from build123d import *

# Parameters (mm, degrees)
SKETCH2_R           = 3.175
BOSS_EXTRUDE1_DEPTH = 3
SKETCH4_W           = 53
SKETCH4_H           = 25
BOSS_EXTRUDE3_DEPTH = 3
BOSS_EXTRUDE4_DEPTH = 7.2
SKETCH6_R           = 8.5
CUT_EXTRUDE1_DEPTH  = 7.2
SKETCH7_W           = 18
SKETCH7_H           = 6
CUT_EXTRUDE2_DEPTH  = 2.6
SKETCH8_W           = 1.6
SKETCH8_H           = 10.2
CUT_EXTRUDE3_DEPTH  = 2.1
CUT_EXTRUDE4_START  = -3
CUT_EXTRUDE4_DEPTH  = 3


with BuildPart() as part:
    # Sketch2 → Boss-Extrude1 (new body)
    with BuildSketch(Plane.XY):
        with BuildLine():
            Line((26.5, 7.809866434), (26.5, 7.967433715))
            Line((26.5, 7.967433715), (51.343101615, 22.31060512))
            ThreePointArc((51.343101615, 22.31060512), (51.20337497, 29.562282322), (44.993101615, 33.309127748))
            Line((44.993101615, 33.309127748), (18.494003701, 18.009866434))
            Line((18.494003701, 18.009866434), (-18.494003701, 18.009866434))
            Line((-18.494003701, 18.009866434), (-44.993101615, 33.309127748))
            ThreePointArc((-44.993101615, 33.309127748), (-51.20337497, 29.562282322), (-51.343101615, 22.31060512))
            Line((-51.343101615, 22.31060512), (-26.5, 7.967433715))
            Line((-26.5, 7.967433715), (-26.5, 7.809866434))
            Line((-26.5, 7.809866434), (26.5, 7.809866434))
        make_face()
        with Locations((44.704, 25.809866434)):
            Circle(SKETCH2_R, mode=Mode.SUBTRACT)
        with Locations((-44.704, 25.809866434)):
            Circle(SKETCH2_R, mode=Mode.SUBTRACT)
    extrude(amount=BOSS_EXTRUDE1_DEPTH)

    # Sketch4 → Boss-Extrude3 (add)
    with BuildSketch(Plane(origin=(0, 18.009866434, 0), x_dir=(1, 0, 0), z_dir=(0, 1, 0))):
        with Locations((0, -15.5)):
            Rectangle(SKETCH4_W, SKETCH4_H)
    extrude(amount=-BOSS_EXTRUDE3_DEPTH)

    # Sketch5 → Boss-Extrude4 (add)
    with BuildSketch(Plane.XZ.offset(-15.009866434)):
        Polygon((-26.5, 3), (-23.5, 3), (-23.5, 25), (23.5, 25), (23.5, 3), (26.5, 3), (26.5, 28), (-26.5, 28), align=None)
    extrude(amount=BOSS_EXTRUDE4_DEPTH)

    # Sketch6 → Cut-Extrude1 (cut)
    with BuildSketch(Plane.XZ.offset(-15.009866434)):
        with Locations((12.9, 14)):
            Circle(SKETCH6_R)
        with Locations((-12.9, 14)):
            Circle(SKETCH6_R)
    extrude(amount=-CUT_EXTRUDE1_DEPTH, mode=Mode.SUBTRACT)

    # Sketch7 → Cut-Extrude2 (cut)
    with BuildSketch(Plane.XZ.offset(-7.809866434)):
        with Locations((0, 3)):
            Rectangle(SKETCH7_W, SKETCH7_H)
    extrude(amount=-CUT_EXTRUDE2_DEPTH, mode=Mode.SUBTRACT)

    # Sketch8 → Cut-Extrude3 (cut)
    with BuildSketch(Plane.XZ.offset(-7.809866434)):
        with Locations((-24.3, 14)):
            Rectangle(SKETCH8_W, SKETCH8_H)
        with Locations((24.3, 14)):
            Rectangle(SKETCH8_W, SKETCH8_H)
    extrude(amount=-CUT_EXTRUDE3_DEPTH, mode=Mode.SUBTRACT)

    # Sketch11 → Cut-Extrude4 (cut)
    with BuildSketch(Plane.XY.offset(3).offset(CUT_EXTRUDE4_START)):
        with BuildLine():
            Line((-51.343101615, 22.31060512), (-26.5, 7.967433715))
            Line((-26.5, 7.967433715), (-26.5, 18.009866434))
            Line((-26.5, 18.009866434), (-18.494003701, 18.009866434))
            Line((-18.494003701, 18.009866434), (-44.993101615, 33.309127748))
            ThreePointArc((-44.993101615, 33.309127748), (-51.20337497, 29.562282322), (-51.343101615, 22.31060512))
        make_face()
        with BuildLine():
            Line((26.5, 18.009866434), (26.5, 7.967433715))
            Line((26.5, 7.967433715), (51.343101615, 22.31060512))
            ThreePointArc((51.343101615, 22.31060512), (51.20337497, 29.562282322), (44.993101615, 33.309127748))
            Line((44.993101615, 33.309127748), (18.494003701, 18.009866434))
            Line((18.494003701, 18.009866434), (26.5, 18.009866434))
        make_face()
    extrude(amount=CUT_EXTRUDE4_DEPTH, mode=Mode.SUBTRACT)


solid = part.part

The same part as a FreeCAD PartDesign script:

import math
import FreeCAD as App
import Part
import Sketcher
from FreeCAD import Vector
Q = App.Units.Quantity


def add_polygon(sketch, points):
    """Adds a closed chain of lines whose ends are joined by coincident constraints."""
    first, n = sketch.GeometryCount, len(points)
    for a, b in zip(points, points[1:] + points[:1]):
        sketch.addGeometry(Part.LineSegment(App.Vector(*a, 0), App.Vector(*b, 0)), False)
    for i in range(n):
        sketch.addConstraint(Sketcher.Constraint("Coincident", first + i, 2, first + (i + 1) % n, 1))

doc = App.newDocument("Part")
body = doc.addObject("PartDesign::Body", "Body")

sketch1 = body.newObject("Sketcher::SketchObject", "Sketch")
sketch1.AttachmentSupport = (doc.getObject("XY_Plane"), [""])
sketch1.MapMode = "FlatFace"
sketch1.addGeometry([
    Part.LineSegment(Vector(26.5, 7.81, 0), Vector(26.5, 7.97, 0)),
    Part.LineSegment(Vector(26.5, 7.97, 0), Vector(51.34, 22.31, 0)),
    Part.ArcOfCircle(Part.Circle(Vector(44.7, 25.81, 0), Vector(0, 0, 1), 7.5), math.radians(-28), math.radians(88)),
    Part.LineSegment(Vector(44.99, 33.31, 0), Vector(18.49, 18.01, 0)),
    Part.LineSegment(Vector(18.49, 18.01, 0), Vector(-18.49, 18.01, 0)),
    Part.LineSegment(Vector(-18.49, 18.01, 0), Vector(-44.99, 33.31, 0)),
    Part.ArcOfCircle(Part.Circle(Vector(-44.7, 25.81, 0), Vector(0, 0, 1), 7.5), math.radians(92), math.radians(208)),
    Part.LineSegment(Vector(-51.34, 22.31, 0), Vector(-26.5, 7.97, 0)),
    Part.LineSegment(Vector(-26.5, 7.97, 0), Vector(-26.5, 7.81, 0)),
    Part.LineSegment(Vector(-26.5, 7.81, 0), Vector(26.5, 7.81, 0)),
    Part.Circle(Vector(-44.7, 25.81, 0), Vector(0, 0, 1), 3.17),
    Part.Circle(Vector(44.7, 25.81, 0), Vector(0, 0, 1), 3.17),
], False)
sketch1.addConstraint([
    Sketcher.Constraint("Coincident", 0, 2, 1, 1),
    Sketcher.Constraint("Coincident", 1, 2, 2, 1),
    Sketcher.Constraint("Coincident", 2, 2, 3, 1),
    Sketcher.Constraint("Coincident", 3, 2, 4, 1),
    Sketcher.Constraint("Coincident", 4, 2, 5, 1),
    Sketcher.Constraint("Coincident", 5, 2, 6, 1),
    Sketcher.Constraint("Coincident", 6, 2, 7, 1),
    Sketcher.Constraint("Coincident", 7, 2, 8, 1),
    Sketcher.Constraint("Coincident", 8, 2, 9, 1),
    Sketcher.Constraint("Coincident", 9, 2, 0, 1),
    Sketcher.Constraint("Vertical", 0),
    Sketcher.Constraint("Horizontal", 4),
    Sketcher.Constraint("Vertical", 8),
    Sketcher.Constraint("Horizontal", 9),
    Sketcher.Constraint("Coincident", 10, 3, 6, 3),
    Sketcher.Constraint("Coincident", 11, 3, 2, 3),
    Sketcher.Constraint("Equal", 2, 6),
    Sketcher.Constraint("Equal", 10, 11),
    Sketcher.Constraint("Symmetric", 2, 3, 6, 3, -2),
    Sketcher.Constraint("Symmetric", 0, 2, 7, 2, -2),
    Sketcher.Constraint("Parallel", 1, 3),
    Sketcher.Constraint("Parallel", 5, 7),
    Sketcher.Constraint("Horizontal", 2, 2, 5, 2),
    Sketcher.Constraint("Horizontal", 1, 2, 6, 2),
    Sketcher.Constraint("Diameter", 10, 6.35),
    Sketcher.Constraint("DistanceX", 9, 1, 9, 2, 53.0),
    Sketcher.Constraint("Angle", 1, Q("30 deg")),
    Sketcher.Constraint("DistanceY", 8, 2, 6, 3, 18.0),
    Sketcher.Constraint("DistanceY", 3, 2, 2, 3, 7.8),
    Sketcher.Constraint("Radius", 2, 7.504832),
    Sketcher.Constraint("DistanceX", 2, 2, 1, 2, 6.35),
    Sketcher.Constraint("DistanceX", -1, 1, 2, 3, 44.704),
    Sketcher.Constraint("DistanceX", -1, 1, 1, 2, 51.343102),
    Sketcher.Constraint("DistanceY", -1, 1, 2, 3, 25.809866),
])
pad1 = body.newObject("PartDesign::Pad", "Pad")
pad1.Profile = sketch1
pad1.Length = 3

sketch2 = body.newObject("Sketcher::SketchObject", "Sketch001")
sketch2.AttachmentSupport = (doc.getObject("XZ_Plane"), [""])
sketch2.MapMode = "FlatFace"
sketch2.AttachmentOffset = App.Placement(Vector(0, 0, -18.009866), App.Rotation())
add_polygon(sketch2, [(-26, 3), (-26, 28), (26, 28), (26, 3)])
sketch2.addConstraint([
    Sketcher.Constraint("Vertical", 0),
    Sketcher.Constraint("Horizontal", 1),
    Sketcher.Constraint("Vertical", 2),
    Sketcher.Constraint("Horizontal", 3),
    Sketcher.Constraint("DistanceX", 1, 1, 1, 2, 53.0),
    Sketcher.Constraint("DistanceY", 0, 1, 0, 2, 25.0),
    Sketcher.Constraint("DistanceY", -1, 1, 0, 2, 28.0),
    Sketcher.Constraint("DistanceX", 0, 2, -1, 1, 26.5),
])
pad2 = body.newObject("PartDesign::Pad", "Pad001")
pad2.Profile = sketch2
pad2.Length = 3

sketch3 = body.newObject("Sketcher::SketchObject", "Sketch002")
sketch3.AttachmentSupport = (doc.getObject("XZ_Plane"), [""])
sketch3.MapMode = "FlatFace"
sketch3.AttachmentOffset = App.Placement(Vector(0, 0, -15.009866), App.Rotation())
add_polygon(sketch3, [(-26.5, 3), (-23.5, 3), (-23.5, 25), (23.5, 25), (23.5, 3), (26.5, 3), (26.5, 28), (-26.5, 28)])
sketch3.addConstraint([
    Sketcher.Constraint("Horizontal", 0),
    Sketcher.Constraint("Vertical", 1),
    Sketcher.Constraint("Horizontal", 2),
    Sketcher.Constraint("Vertical", 3),
    Sketcher.Constraint("Horizontal", 4),
    Sketcher.Constraint("Vertical", 5),
    Sketcher.Constraint("Horizontal", 6),
    Sketcher.Constraint("Vertical", 7),
    Sketcher.Constraint("Symmetric", 0, 2, 3, 2, -2),
    Sketcher.Constraint("Equal", 0, 4),
    Sketcher.Constraint("DistanceX", 0, 1, 0, 2, 3.0),
    Sketcher.Constraint("DistanceX", 2, 1, 2, 2, 47.0),
    Sketcher.Constraint("DistanceY", 1, 1, 1, 2, 22.0),
    Sketcher.Constraint("DistanceY", 5, 1, 5, 2, 25.0),
    Sketcher.Constraint("DistanceY", -1, 1, 0, 2, 3.0),
])
pad3 = body.newObject("PartDesign::Pad", "Pad002")
pad3.Profile = sketch3
pad3.Length = 7.2

sketch4 = body.newObject("Sketcher::SketchObject", "Sketch003")
sketch4.AttachmentSupport = (doc.getObject("XZ_Plane"), [""])
sketch4.MapMode = "FlatFace"
sketch4.AttachmentOffset = App.Placement(Vector(0, 0, -15.009866), App.Rotation())
sketch4.addGeometry([
    Part.Circle(Vector(13, 14, 0), Vector(0, 0, 1), 8),
    Part.Circle(Vector(-13, 14, 0), Vector(0, 0, 1), 8),
], False)
sketch4.addConstraint([
    Sketcher.Constraint("Equal", 0, 1),
    Sketcher.Constraint("Symmetric", 0, 3, 1, 3, -2),
    Sketcher.Constraint("Diameter", 0, 17.0),
    Sketcher.Constraint("DistanceY", -1, 1, 0, 3, 14.0),
    Sketcher.Constraint("DistanceX", -1, 1, 0, 3, 12.9),
])
pocket1 = body.newObject("PartDesign::Pocket", "Pocket")
pocket1.Profile = sketch4
pocket1.Length = 7.2

sketch5 = body.newObject("Sketcher::SketchObject", "Sketch004")
sketch5.AttachmentSupport = (doc.getObject("XZ_Plane"), [""])
sketch5.MapMode = "FlatFace"
sketch5.AttachmentOffset = App.Placement(Vector(0, 0, -7.809866), App.Rotation())
add_polygon(sketch5, [(-9, 6), (-9, 0), (9, 0), (9, 6)])
sketch5.addConstraint([
    Sketcher.Constraint("Vertical", 0),
    Sketcher.Constraint("Horizontal", 1),
    Sketcher.Constraint("Vertical", 2),
    Sketcher.Constraint("Horizontal", 3),
    Sketcher.Constraint("Symmetric", 0, 2, 1, 2, -1, 1),
    Sketcher.Constraint("DistanceX", 1, 1, 1, 2, 18.0),
    Sketcher.Constraint("DistanceY", 0, 2, 0, 1, 6.0),
])
pocket2 = body.newObject("PartDesign::Pocket", "Pocket001")
pocket2.Profile = sketch5
pocket2.Length = 2.6

sketch6 = body.newObject("Sketcher::SketchObject", "Sketch005")
sketch6.AttachmentSupport = (doc.getObject("XZ_Plane"), [""])
sketch6.MapMode = "FlatFace"
sketch6.AttachmentOffset = App.Placement(Vector(0, 0, -7.809866), App.Rotation())
add_polygon(sketch6, [(-25.1, 19.1), (-25.1, 8.9), (-23.5, 8.9), (-23.5, 19.1)])
add_polygon(sketch6, [(23.5, 19.1), (23.5, 8.9), (25.1, 8.9), (25.1, 19.1)])
sketch6.addConstraint([
    Sketcher.Constraint("Vertical", 0),
    Sketcher.Constraint("Horizontal", 1),
    Sketcher.Constraint("Vertical", 2),
    Sketcher.Constraint("Horizontal", 3),
    Sketcher.Constraint("Vertical", 4),
    Sketcher.Constraint("Horizontal", 5),
    Sketcher.Constraint("Vertical", 6),
    Sketcher.Constraint("Horizontal", 7),
    Sketcher.Constraint("Symmetric", 1, 2, 4, 2, -2),
    Sketcher.Constraint("Symmetric", 3, 2, 6, 2, -2),
    Sketcher.Constraint("DistanceX", 1, 1, 1, 2, 1.6),
    Sketcher.Constraint("DistanceY", 0, 2, 0, 1, 10.2),
    Sketcher.Constraint("DistanceX", 1, 2, 4, 2, 47.0),
    Sketcher.Constraint("DistanceY", -1, 1, 0, 2, 8.9),
])
pocket3 = body.newObject("PartDesign::Pocket", "Pocket002")
pocket3.Profile = sketch6
pocket3.Length = 2.1

sketch7 = body.newObject("Sketcher::SketchObject", "Sketch006")
sketch7.AttachmentSupport = (doc.getObject("XY_Plane"), [""])
sketch7.MapMode = "FlatFace"
sketch7.addGeometry([
    Part.LineSegment(Vector(-51, 22, 0), Vector(-26, 8, 0)),
    Part.LineSegment(Vector(-26, 8, 0), Vector(-26, 18, 0)),
    Part.LineSegment(Vector(-26, 18, 0), Vector(-18, 18, 0)),
    Part.LineSegment(Vector(-18, 18, 0), Vector(-45, 33, 0)),
    Part.ArcOfCircle(Part.Circle(Vector(-45, 26, 0), Vector(0, 0, 1), 8), math.radians(92), math.radians(208)),
    Part.LineSegment(Vector(26, 18, 0), Vector(26, 8, 0)),
    Part.LineSegment(Vector(26, 8, 0), Vector(51, 22, 0)),
    Part.ArcOfCircle(Part.Circle(Vector(45, 26, 0), Vector(0, 0, 1), 8), math.radians(-28), math.radians(88)),
    Part.LineSegment(Vector(45, 33, 0), Vector(18, 18, 0)),
    Part.LineSegment(Vector(18, 18, 0), Vector(26, 18, 0)),
], False)
sketch7.addConstraint([
    Sketcher.Constraint("Coincident", 0, 2, 1, 1),
    Sketcher.Constraint("Coincident", 1, 2, 2, 1),
    Sketcher.Constraint("Coincident", 2, 2, 3, 1),
    Sketcher.Constraint("Coincident", 3, 2, 4, 1),
    Sketcher.Constraint("Coincident", 4, 2, 0, 1),
    Sketcher.Constraint("Coincident", 5, 2, 6, 1),
    Sketcher.Constraint("Coincident", 6, 2, 7, 1),
    Sketcher.Constraint("Coincident", 7, 2, 8, 1),
    Sketcher.Constraint("Coincident", 8, 2, 9, 1),
    Sketcher.Constraint("Coincident", 9, 2, 5, 1),
    Sketcher.Constraint("Vertical", 1),
    Sketcher.Constraint("Horizontal", 2),
    Sketcher.Constraint("Vertical", 5),
    Sketcher.Constraint("Horizontal", 9),
    Sketcher.Constraint("Equal", 4, 7),
    Sketcher.Constraint("Symmetric", 4, 3, 7, 3, -2),
    Sketcher.Constraint("Symmetric", 0, 2, 5, 2, -2),
    Sketcher.Constraint("Symmetric", 2, 2, 8, 2, -2),
    Sketcher.Constraint("Parallel", 0, 3),
    Sketcher.Constraint("Parallel", 6, 8),
    Sketcher.Constraint("Horizontal", 4, 2, 6, 2),
    Sketcher.Constraint("Angle", 0, Q("-30 deg")),
    Sketcher.Constraint("DistanceX", 0, 2, 5, 2, 53.0),
    Sketcher.Constraint("DistanceY", 1, 2, 4, 3, 7.8),
    Sketcher.Constraint("Radius", 4, 7.504832),
    Sketcher.Constraint("DistanceX", 4, 2, 3, 2, 6.35),
    Sketcher.Constraint("DistanceX", 4, 3, -1, 1, 44.704),
    Sketcher.Constraint("DistanceX", 3, 2, -1, 1, 44.993102),
    Sketcher.Constraint("DistanceY", -1, 1, 4, 3, 25.809866),
])
pocket4 = body.newObject("PartDesign::Pocket", "Pocket003")
pocket4.Profile = sketch7
pocket4.Length = 3
pocket4.Reversed = True

doc.recompute()
